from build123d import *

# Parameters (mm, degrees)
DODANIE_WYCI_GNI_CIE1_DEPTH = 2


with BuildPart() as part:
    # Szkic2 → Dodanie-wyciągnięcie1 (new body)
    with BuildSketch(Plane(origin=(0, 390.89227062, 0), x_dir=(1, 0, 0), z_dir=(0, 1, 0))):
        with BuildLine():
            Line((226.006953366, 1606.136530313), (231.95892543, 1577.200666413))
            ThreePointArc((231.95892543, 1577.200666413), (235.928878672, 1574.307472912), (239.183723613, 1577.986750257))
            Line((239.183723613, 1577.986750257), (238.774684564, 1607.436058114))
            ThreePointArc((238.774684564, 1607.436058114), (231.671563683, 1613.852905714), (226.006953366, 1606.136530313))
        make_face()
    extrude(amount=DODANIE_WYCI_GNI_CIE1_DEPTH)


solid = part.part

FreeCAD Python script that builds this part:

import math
import FreeCAD as App
import Part
import Sketcher
from FreeCAD import Vector
Q = App.Units.Quantity

doc = App.newDocument("Part")
body = doc.addObject("PartDesign::Body", "Body")

# Sketch on XZ plane
sketch1 = doc.addObject("Sketcher::SketchObject", "Sketch")
body.addObject(sketch1)
sketch1.AttachmentSupport = (doc.XZ_Plane, [""])
sketch1.MapMode = "FlatFace"
sketch1.AttachmentOffset = App.Placement(Vector(0, 0, -390.892271), App.Rotation())
sketch1.addGeometry([
    Part.LineSegment(Vector(226.006953, -1606.13653, 0), Vector(231.958925, -1577.200666, 0)),
    Part.ArcOfCircle(Part.Circle(Vector(235.534076, -1577.936058, 0), Vector(0, 0, 1), 3.65), math.radians(-0.795764), math.radians(168.376646)),
    Part.LineSegment(Vector(239.183724, -1577.98675, 0), Vector(238.774685, -1607.436058, 0)),
    Part.ArcOfCircle(Part.Circle(Vector(232.324685, -1607.436058, 0), Vector(0, 0, 1), 6.45), math.radians(168.376646), math.radians(360)),
], False)
sketch1.addConstraint([
    Sketcher.Constraint("Tangent", 0, 2, 1, 2),
    Sketcher.Constraint("Tangent", 1, 1, 2, 1),
    Sketcher.Constraint("Coincident", 2, 2, 3, 2),
    Sketcher.Constraint("Tangent", 3, 1, 0, 1),
    Sketcher.Constraint("Horizontal", 3, 3, 2, 2),
    Sketcher.Constraint("Radius", 1, Q("3.65 mm")),
    Sketcher.Constraint("Radius", 3, Q("6.45 mm")),
    Sketcher.Constraint("DistanceY", 3, 3, 1, 3, Q("29.5 mm")),
    Sketcher.Constraint("DistanceX", 0, 2, 1, 1, Q("7.224798 mm")),
    Sketcher.Constraint("DistanceY", 1, 3, -1, 1, Q("1577.936058 mm")),
    Sketcher.Constraint("DistanceX", -1, 1, 1, 3, Q("235.534076 mm")),
])
pad1 = doc.addObject("PartDesign::Pad", "Pad")
body.addObject(pad1)
pad1.Profile = sketch1
pad1.Length = 2
pad1.Reversed = True

doc.recompute()
